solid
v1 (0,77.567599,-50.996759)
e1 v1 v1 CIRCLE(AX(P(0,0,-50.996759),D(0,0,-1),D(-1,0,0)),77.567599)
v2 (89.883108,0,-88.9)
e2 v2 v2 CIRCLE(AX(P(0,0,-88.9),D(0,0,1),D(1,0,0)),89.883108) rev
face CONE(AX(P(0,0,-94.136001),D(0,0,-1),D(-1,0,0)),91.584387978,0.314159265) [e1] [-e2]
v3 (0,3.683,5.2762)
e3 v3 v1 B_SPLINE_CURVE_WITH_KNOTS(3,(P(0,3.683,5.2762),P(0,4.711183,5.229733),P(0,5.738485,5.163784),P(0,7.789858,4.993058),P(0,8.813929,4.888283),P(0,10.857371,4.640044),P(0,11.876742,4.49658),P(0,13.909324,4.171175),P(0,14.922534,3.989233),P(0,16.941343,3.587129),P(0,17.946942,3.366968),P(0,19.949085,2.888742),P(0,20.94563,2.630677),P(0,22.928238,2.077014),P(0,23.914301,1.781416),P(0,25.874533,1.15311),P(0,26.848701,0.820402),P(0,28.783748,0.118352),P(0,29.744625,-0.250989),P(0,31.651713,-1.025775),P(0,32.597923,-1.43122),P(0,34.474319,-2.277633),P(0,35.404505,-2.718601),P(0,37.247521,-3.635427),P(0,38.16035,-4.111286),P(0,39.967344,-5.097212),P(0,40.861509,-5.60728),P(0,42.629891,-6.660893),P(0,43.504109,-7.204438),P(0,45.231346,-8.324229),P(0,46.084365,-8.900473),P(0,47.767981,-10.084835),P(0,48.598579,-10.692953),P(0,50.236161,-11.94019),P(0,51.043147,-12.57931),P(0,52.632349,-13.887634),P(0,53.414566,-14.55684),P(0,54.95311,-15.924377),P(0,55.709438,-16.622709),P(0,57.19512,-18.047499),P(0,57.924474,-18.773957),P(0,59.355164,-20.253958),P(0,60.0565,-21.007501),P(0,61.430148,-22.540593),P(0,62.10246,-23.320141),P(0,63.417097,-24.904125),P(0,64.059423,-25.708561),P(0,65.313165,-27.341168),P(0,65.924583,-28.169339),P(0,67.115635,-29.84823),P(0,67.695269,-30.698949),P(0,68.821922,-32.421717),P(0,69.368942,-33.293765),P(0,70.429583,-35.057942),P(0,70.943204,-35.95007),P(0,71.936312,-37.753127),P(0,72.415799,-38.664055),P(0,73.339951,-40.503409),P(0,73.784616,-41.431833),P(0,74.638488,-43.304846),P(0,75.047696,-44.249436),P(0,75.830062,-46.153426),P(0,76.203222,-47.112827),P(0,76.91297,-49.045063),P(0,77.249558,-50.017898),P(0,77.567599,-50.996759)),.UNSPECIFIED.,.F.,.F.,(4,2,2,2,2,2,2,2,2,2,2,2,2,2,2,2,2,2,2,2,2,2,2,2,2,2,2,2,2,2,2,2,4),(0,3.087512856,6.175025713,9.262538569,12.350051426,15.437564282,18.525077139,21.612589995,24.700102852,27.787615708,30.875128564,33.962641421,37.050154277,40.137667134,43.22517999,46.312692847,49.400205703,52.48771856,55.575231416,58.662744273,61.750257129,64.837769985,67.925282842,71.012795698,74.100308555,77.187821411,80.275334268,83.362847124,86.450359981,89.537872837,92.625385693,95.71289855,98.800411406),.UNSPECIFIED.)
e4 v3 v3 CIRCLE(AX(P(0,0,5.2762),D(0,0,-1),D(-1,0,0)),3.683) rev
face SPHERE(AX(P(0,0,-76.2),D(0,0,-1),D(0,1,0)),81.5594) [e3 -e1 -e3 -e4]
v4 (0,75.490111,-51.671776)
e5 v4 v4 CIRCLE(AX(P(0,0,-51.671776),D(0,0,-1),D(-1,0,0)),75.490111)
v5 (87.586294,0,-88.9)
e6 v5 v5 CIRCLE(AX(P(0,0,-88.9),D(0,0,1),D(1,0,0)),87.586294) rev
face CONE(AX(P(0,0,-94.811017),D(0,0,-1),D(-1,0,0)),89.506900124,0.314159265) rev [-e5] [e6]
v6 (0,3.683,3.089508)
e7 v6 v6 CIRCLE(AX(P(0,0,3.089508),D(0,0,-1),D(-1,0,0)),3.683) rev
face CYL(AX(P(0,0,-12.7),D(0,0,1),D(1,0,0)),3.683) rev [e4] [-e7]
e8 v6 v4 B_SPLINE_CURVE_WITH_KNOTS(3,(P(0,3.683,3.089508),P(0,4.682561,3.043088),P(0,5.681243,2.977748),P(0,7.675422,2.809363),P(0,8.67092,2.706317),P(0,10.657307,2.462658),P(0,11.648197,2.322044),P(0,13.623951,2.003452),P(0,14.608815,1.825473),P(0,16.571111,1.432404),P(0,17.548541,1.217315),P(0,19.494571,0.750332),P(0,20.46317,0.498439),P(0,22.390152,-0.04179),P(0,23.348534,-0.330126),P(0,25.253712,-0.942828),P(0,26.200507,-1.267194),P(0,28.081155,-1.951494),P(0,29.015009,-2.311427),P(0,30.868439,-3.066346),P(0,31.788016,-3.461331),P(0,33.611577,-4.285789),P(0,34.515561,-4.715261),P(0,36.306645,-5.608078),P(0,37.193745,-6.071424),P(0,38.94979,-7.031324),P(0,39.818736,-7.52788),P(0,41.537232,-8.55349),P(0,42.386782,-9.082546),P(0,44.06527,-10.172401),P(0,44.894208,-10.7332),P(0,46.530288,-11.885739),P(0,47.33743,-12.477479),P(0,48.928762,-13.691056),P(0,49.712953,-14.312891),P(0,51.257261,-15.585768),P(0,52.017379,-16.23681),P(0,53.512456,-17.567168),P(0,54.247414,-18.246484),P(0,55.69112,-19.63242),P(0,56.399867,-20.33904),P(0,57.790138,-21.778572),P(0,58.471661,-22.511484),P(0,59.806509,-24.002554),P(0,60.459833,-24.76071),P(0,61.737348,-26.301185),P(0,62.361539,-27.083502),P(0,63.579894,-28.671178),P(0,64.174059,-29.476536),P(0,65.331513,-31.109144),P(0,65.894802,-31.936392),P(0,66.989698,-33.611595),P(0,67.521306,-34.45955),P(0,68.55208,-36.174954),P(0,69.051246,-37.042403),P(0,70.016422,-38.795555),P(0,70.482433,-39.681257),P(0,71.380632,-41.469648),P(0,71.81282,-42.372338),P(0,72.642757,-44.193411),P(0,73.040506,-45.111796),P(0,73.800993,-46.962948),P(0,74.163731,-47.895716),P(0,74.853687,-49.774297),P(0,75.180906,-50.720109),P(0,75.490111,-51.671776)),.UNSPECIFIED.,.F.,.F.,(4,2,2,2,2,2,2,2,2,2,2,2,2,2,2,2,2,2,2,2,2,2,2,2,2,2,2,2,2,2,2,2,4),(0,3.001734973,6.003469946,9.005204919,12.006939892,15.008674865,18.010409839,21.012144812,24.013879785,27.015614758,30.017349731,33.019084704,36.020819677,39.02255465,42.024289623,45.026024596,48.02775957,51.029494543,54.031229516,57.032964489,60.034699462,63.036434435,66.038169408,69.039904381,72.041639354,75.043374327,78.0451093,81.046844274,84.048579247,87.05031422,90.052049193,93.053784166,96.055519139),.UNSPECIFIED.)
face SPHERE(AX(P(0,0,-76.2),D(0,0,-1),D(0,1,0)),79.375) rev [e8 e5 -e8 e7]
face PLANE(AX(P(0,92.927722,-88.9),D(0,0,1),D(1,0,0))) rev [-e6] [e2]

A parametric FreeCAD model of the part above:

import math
import FreeCAD as App
import Part
import Sketcher

V = App.Vector
Q = App.Units.Quantity

doc = App.newDocument("Part")
params = doc.addObject("Spreadsheet::Sheet", "Params")
for row, (alias, value) in enumerate([
    ("sketch1_radius", "0.25 in"),
    ("sketch1_radius2", "3.125 in"),
    ("sketch1_radius3", "0.164 in"),
    ("revolution_angle", "360 deg"),
    ("sketch2_radius", "3.325 in"),
    ("groove_angle", "360 deg"),
    ("sketch3_diameter", "0.29 in"),
    ("pocket1_length", "1 in"),
], start=1):
    params.set(f"A{row}", alias)
    params.set(f"B{row}", "=" + value)
    params.setAlias(f"B{row}", alias)

body = doc.addObject("PartDesign::Body", "Body")

# Sketch on YZ plane
sketch1 = body.newObject("Sketcher::SketchObject", "Sketch")
sketch1.AttachmentSupport = (doc.getObject("YZ_Plane"), [""])
sketch1.MapMode = "FlatFace"
sketch1.addGeometry([
    Part.ArcOfCircle(Part.Circle(V(0, -76.2, 0), V(0, 0, 1), 79.375), math.radians(18), math.radians(90)),  # 0
    Part.LineSegment(V(75.490111, -51.671776, 0), V(89.5069, -94.811017, 0)),  # 1
    Part.ArcOfCircle(Part.Circle(V(95.546109, -92.848759, 0), V(0, 0, 1), 6.35), math.radians(-162), math.radians(-90)),  # 2
    Part.LineSegment(V(95.546109, -99.198759, 0), V(114.3, -99.198759, 0)),  # 3
    Part.LineSegment(V(114.3, -99.198759, 0), V(114.3, -97.014359, 0)),  # 4
    Part.LineSegment(V(114.3, -97.014359, 0), V(95.546109, -97.014359, 0)),  # 5
    Part.ArcOfCircle(Part.Circle(V(95.546109, -92.848759, 0), V(0, 0, 1), 4.1656), math.radians(-162), math.radians(-90)),  # 6
    Part.LineSegment(V(91.584388, -94.136001, 0), V(77.567599, -50.996759, 0)),  # 7
    Part.ArcOfCircle(Part.Circle(V(0, -76.2, 0), V(0, 0, 1), 81.5594), math.radians(18), math.radians(90)),  # 8
    Part.LineSegment(V(0, 5.3594, 0), V(0, 3.175, 0)),  # 9
], False)
sketch1.addConstraint([
    Sketcher.Constraint("Tangent", 0, 1, 1, 1),
    Sketcher.Constraint("Tangent", 1, 2, 2, 1),
    Sketcher.Constraint("Tangent", 2, 2, 3, 1),
    Sketcher.Constraint("Coincident", 3, 2, 4, 1),
    Sketcher.Constraint("Coincident", 4, 2, 5, 1),
    Sketcher.Constraint("Tangent", 5, 2, 6, 2),
    Sketcher.Constraint("Tangent", 6, 1, 7, 1),
    Sketcher.Constraint("Tangent", 7, 2, 8, 1),
    Sketcher.Constraint("Coincident", 8, 2, 9, 1),
    Sketcher.Constraint("Coincident", 9, 2, 0, 2),
    Sketcher.Constraint("Horizontal", 3),
    Sketcher.Constraint("Vertical", 4),
    Sketcher.Constraint("Horizontal", 5),
    Sketcher.Constraint("Vertical", 9),
    Sketcher.Constraint("Coincident", 6, 3, 2, 3),
    Sketcher.Constraint("Coincident", 8, 3, 0, 3),
    Sketcher.Constraint("PointOnObject", 0, 3, -2),
    Sketcher.Constraint("PointOnObject", 8, 2, -2),
    Sketcher.Constraint("Parallel", 1, 7),
    Sketcher.Constraint("Radius", 2, Q("0.25 in")),
    Sketcher.Constraint("DistanceY", 0, 3, -1, 1, Q("3 in")),
    Sketcher.Constraint("Angle", 1, Q("-72 deg")),
    Sketcher.Constraint("Radius", 0, Q("3.125 in")),
    Sketcher.Constraint("Radius", 6, Q("0.164 in")),
    Sketcher.Constraint("DistanceX", -1, 1, 3, 2, Q("4.5 in")),
    Sketcher.Constraint("DistanceX", 3, 1, 3, 2, Q("18.753891 mm")),
])
sketch1.setExpression("Constraints[19]", "Params.sketch1_radius")
sketch1.setExpression("Constraints[22]", "Params.sketch1_radius2")
sketch1.setExpression("Constraints[23]", "Params.sketch1_radius3")
revolution = body.newObject("PartDesign::Revolution", "Revolution")
revolution.Profile = sketch1
revolution.ReferenceAxis = (sketch1, ["V_Axis"])
revolution.setExpression("Angle", "Params.revolution_angle")

# Sketch on YZ plane
sketch2 = body.newObject("Sketcher::SketchObject", "Sketch001")
sketch2.AttachmentSupport = (doc.getObject("YZ_Plane"), [""])
sketch2.MapMode = "FlatFace"
sketch2.addGeometry([
    Part.LineSegment(V(0, 23.886406, 0), V(0, 8.255, 0)),  # 0
    Part.ArcOfCircle(Part.Circle(V(0, -76.2, 0), V(0, 0, 1), 84.455), math.radians(18), math.radians(90)),  # 1
    Part.LineSegment(V(80.321478, -50.10197, 0), V(92.927722, -88.9, 0)),  # 2
    Part.LineSegment(V(92.927722, -88.9, 0), V(73.62446, -88.9, 0)),  # 3
    Part.LineSegment(V(73.62446, -88.9, 0), V(73.62446, -116.252746, 0)),  # 4
    Part.LineSegment(V(73.62446, -116.252746, 0), V(127.217846, -116.252746, 0)),  # 5
    Part.LineSegment(V(127.217846, -116.252746, 0), V(127.217846, 23.886406, 0)),  # 6
    Part.LineSegment(V(127.217846, 23.886406, 0), V(0, 23.886406, 0)),  # 7
], False)
sketch2.addConstraint([
    Sketcher.Constraint("Coincident", 0, 2, 1, 2),
    Sketcher.Constraint("Tangent", 1, 1, 2, 1),
    Sketcher.Constraint("Coincident", 2, 2, 3, 1),
    Sketcher.Constraint("Coincident", 3, 2, 4, 1),
    Sketcher.Constraint("Coincident", 4, 2, 5, 1),
    Sketcher.Constraint("Coincident", 5, 2, 6, 1),
    Sketcher.Constraint("Coincident", 6, 2, 7, 1),
    Sketcher.Constraint("Coincident", 7, 2, 0, 1),
    Sketcher.Constraint("Vertical", 0),
    Sketcher.Constraint("Horizontal", 3),
    Sketcher.Constraint("Vertical", 4),
    Sketcher.Constraint("Horizontal", 5),
    Sketcher.Constraint("Vertical", 6),
    Sketcher.Constraint("Horizontal", 7),
    Sketcher.Constraint("PointOnObject", 1, 3, -2),
    Sketcher.Constraint("PointOnObject", 0, 2, -2),
    Sketcher.Constraint("DistanceY", 1, 3, -1, 1, Q("3 in")),
    Sketcher.Constraint("Angle", 2, Q("-72 deg")),
    Sketcher.Constraint("Radius", 1, Q("3.325 in")),
    Sketcher.Constraint("DistanceY", 2, 2, -1, 1, Q("3.5 in")),
    Sketcher.Constraint("DistanceY", 6, 1, 6, 2, Q("140.139152 mm")),
    Sketcher.Constraint("DistanceX", 3, 2, 3, 1, Q("19.303262 mm")),
    Sketcher.Constraint("DistanceX", 5, 1, 5, 2, Q("53.593386 mm")),
    Sketcher.Constraint("DistanceY", 0, 2, 0, 1, Q("15.631406 mm")),
])
sketch2.setExpression("Constraints[18]", "Params.sketch2_radius")
groove = body.newObject("PartDesign::Groove", "Groove")
groove.Profile = sketch2
groove.ReferenceAxis = (sketch2, ["V_Axis"])
groove.setExpression("Angle", "Params.groove_angle")

# Sketch on XY plane
sketch3 = body.newObject("Sketcher::SketchObject", "Sketch002")
sketch3.AttachmentSupport = (doc.getObject("XY_Plane"), [""])
sketch3.MapMode = "FlatFace"
sketch3.addGeometry(Part.Circle(V(0, 0, 0), V(0, 0, 1), 3.683), False)
sketch3.addConstraint([
    Sketcher.Constraint("Coincident", 0, 3, -1, 1),
    Sketcher.Constraint("Diameter", 0, Q("0.29 in")),
])
sketch3.setExpression("Constraints[1]", "Params.sketch3_diameter")
pocket1 = body.newObject("PartDesign::Pocket", "Pocket")
pocket1.Profile = sketch3
pocket1.setExpression("Length", "Params.pocket1_length")
pocket1.Midplane = True

doc.recompute()
